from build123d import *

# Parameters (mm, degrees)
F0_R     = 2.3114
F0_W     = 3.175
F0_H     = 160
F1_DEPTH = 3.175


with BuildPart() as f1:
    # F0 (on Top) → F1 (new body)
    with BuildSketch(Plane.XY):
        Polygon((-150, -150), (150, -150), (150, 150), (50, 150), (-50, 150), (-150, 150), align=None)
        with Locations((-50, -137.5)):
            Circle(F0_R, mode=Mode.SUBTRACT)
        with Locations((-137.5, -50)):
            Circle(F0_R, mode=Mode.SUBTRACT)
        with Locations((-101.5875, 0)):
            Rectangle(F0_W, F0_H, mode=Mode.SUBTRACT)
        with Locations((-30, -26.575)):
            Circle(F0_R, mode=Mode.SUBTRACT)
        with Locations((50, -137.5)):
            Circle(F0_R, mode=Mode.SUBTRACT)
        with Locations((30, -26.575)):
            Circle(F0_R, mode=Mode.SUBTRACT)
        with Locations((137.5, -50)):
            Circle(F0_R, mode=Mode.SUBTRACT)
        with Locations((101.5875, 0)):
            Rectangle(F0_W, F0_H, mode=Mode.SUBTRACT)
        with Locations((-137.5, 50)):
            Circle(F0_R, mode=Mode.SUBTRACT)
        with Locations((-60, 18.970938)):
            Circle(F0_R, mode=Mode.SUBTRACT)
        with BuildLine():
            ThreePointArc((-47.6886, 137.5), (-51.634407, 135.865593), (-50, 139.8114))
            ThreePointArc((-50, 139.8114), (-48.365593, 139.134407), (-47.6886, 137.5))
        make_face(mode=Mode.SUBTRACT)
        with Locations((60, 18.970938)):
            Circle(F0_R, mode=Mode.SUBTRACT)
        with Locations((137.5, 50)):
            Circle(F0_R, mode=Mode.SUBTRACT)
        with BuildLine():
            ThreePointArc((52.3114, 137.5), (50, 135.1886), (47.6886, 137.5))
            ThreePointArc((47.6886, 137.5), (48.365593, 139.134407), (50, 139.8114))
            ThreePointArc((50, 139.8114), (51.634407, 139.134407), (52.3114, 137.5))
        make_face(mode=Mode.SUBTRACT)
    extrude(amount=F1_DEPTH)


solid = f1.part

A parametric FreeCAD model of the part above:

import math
import FreeCAD as App
import Part
import Sketcher
Q = App.Units.Quantity

doc = App.newDocument("Part")
body = doc.addObject("PartDesign::Body", "Body")

# Sketch on XY plane
sketch1 = body.newObject("Sketcher::SketchObject", "Sketch")
sketch1.AttachmentSupport = (doc.getObject("XY_Plane"), [""])
sketch1.MapMode = "FlatFace"
sketch1.addGeometry([
    Part.LineSegment(App.Vector(-150, -150, 0), App.Vector(150, -150, 0)),  # 0
    Part.LineSegment(App.Vector(150, -150, 0), App.Vector(150, 150, 0)),  # 1
    Part.LineSegment(App.Vector(150, 150, 0), App.Vector(-150, 150, 0)),  # 2
    Part.LineSegment(App.Vector(-150, 150, 0), App.Vector(-150, -150, 0)),  # 3
    Part.Circle(App.Vector(-50, -137.5, 0), App.Vector(0, 0, 1), 2.3114),  # 4
    Part.Circle(App.Vector(-137.5, -50, 0), App.Vector(0, 0, 1), 2.3114),  # 5
    Part.LineSegment(App.Vector(-100, -80, 0), App.Vector(-103.175, -80, 0)),  # 6
    Part.LineSegment(App.Vector(-103.175, -80, 0), App.Vector(-103.175, 80, 0)),  # 7
    Part.LineSegment(App.Vector(-103.175, 80, 0), App.Vector(-100, 80, 0)),  # 8
    Part.LineSegment(App.Vector(-100, 80, 0), App.Vector(-100, -80, 0)),  # 9
    Part.Circle(App.Vector(-30, -26.575, 0), App.Vector(0, 0, 1), 2.3114),  # 10
    Part.Circle(App.Vector(50, -137.5, 0), App.Vector(0, 0, 1), 2.3114),  # 11
    Part.Circle(App.Vector(30, -26.575, 0), App.Vector(0, 0, 1), 2.3114),  # 12
    Part.Circle(App.Vector(137.5, -50, 0), App.Vector(0, 0, 1), 2.3114),  # 13
    Part.LineSegment(App.Vector(103.175, -80, 0), App.Vector(100, -80, 0)),  # 14
    Part.LineSegment(App.Vector(100, -80, 0), App.Vector(100, 80, 0)),  # 15
    Part.LineSegment(App.Vector(100, 80, 0), App.Vector(103.175, 80, 0)),  # 16
    Part.LineSegment(App.Vector(103.175, 80, 0), App.Vector(103.175, -80, 0)),  # 17
    Part.Circle(App.Vector(-137.5, 50, 0), App.Vector(0, 0, 1), 2.3114),  # 18
    Part.Circle(App.Vector(-60, 18.970938, 0), App.Vector(0, 0, 1), 2.3114),  # 19
    Part.ArcOfCircle(Part.Circle(App.Vector(-49.999999, 137.500001, 0), App.Vector(0, 0, 1), 2.311399), math.radians(-0.000033), math.radians(90.000033)),  # 20
    Part.ArcOfCircle(Part.Circle(App.Vector(-50, 137.5, 0), App.Vector(0, 0, 1), 2.3114), math.radians(89.999994), math.radians(360.000006)),  # 21
    Part.Circle(App.Vector(60, 18.970938, 0), App.Vector(0, 0, 1), 2.3114),  # 22
    Part.Circle(App.Vector(137.5, 50, 0), App.Vector(0, 0, 1), 2.3114),  # 23
    Part.ArcOfCircle(Part.Circle(App.Vector(50.000001, 137.500001, 0), App.Vector(0, 0, 1), 2.311399), math.radians(-0.000033), math.radians(90.000033)),  # 24
    Part.ArcOfCircle(Part.Circle(App.Vector(50, 137.5, 0), App.Vector(0, 0, 1), 2.3114), math.radians(180), math.radians(360)),  # 25
    Part.ArcOfCircle(Part.Circle(App.Vector(49.999999, 137.500001, 0), App.Vector(0, 0, 1), 2.311399), math.radians(89.999967), math.radians(180.000033)),  # 26
], False)
sketch1.addConstraint([
    Sketcher.Constraint("Coincident", 0, 2, 1, 1),
    Sketcher.Constraint("Coincident", 1, 2, 2, 1),
    Sketcher.Constraint("Coincident", 2, 2, 3, 1),
    Sketcher.Constraint("Coincident", 3, 2, 0, 1),
    Sketcher.Constraint("Coincident", 6, 2, 7, 1),
    Sketcher.Constraint("Coincident", 7, 2, 8, 1),
    Sketcher.Constraint("Coincident", 8, 2, 9, 1),
    Sketcher.Constraint("Coincident", 9, 2, 6, 1),
    Sketcher.Constraint("Coincident", 14, 2, 15, 1),
    Sketcher.Constraint("Coincident", 15, 2, 16, 1),
    Sketcher.Constraint("Coincident", 16, 2, 17, 1),
    Sketcher.Constraint("Coincident", 17, 2, 14, 1),
    Sketcher.Constraint("Tangent", 20, 1, 21, 2),
    Sketcher.Constraint("Coincident", 21, 1, 20, 2),
    Sketcher.Constraint("Tangent", 24, 1, 25, 2),
    Sketcher.Constraint("Tangent", 25, 1, 26, 2),
    Sketcher.Constraint("Tangent", 26, 1, 24, 2),
    Sketcher.Constraint("Horizontal", 0),
    Sketcher.Constraint("Vertical", 1),
    Sketcher.Constraint("Horizontal", 2),
    Sketcher.Constraint("Vertical", 3),
    Sketcher.Constraint("Horizontal", 6),
    Sketcher.Constraint("Vertical", 7),
    Sketcher.Constraint("Horizontal", 8),
    Sketcher.Constraint("Vertical", 9),
    Sketcher.Constraint("Horizontal", 14),
    Sketcher.Constraint("Vertical", 15),
    Sketcher.Constraint("Horizontal", 16),
    Sketcher.Constraint("Vertical", 17),
    Sketcher.Constraint("Equal", 4, 5),
    Sketcher.Constraint("Equal", 5, 10),
    Sketcher.Constraint("Equal", 10, 11),
    Sketcher.Constraint("Equal", 11, 12),
    Sketcher.Constraint("Equal", 12, 13),
    Sketcher.Constraint("Equal", 13, 18),
    Sketcher.Constraint("Equal", 18, 19),
    Sketcher.Constraint("Equal", 19, 20),
    Sketcher.Constraint("Equal", 21, 22),
    Sketcher.Constraint("Equal", 22, 23),
    Sketcher.Constraint("Equal", 23, 24),
    Sketcher.Constraint("Symmetric", 13, 3, 18, 3, -1, 1),
    Sketcher.Constraint("Symmetric", 11, 3, 20, 3, -1, 1),
    Sketcher.Constraint("Symmetric", 5, 3, 23, 3, -1, 1),
    Sketcher.Constraint("Symmetric", 4, 3, 24, 3, -1, 1),
    Sketcher.Constraint("Symmetric", 0, 2, 2, 2, -1, 1),
    Sketcher.Constraint("Symmetric", 8, 2, 14, 2, -1, 1),
    Sketcher.Constraint("Symmetric", 6, 2, 16, 2, -1, 1),
    Sketcher.Constraint("Symmetric", 4, 3, 11, 3, -2),
    Sketcher.Constraint("Symmetric", 10, 3, 12, 3, -2),
    Sketcher.Constraint("Symmetric", 5, 3, 13, 3, -2),
    Sketcher.Constraint("Symmetric", 19, 3, 22, 3, -2),
    Sketcher.Constraint("Horizontal", 9, 2, 14, 2),
    Sketcher.Constraint("Horizontal", 26, 3, 20, 1),
    Sketcher.Constraint("Horizontal", 20, 1, 24, 1),
    Sketcher.Constraint("Horizontal", 24, 1, 25, 1),
    Sketcher.Constraint("Vertical", 20, 3, 21, 1),
    Sketcher.Constraint("Vertical", 25, 3, 26, 1),
    Sketcher.Constraint("Equal", 2, 1),
    Sketcher.Constraint("Diameter", 4, Q("0.182 in")),
    Sketcher.Constraint("DistanceX", 6, 2, 6, 1, Q("0.125 in")),
    Sketcher.Constraint("DistanceX", 0, 1, 0, 2, 300.0),
    Sketcher.Constraint("DistanceY", 7, 1, 7, 2, 160.0),
    Sketcher.Constraint("DistanceX", 4, 3, -1, 1, 50.0),
    Sketcher.Constraint("DistanceY", 4, 3, -1, 1, 137.5),
    Sketcher.Constraint("DistanceX", 5, 3, -1, 1, 137.5),
    Sketcher.Constraint("DistanceY", 5, 3, -1, 1, 50.0),
    Sketcher.Constraint("DistanceX", 10, 3, -1, 1, 30.0),
    Sketcher.Constraint("DistanceY", 10, 3, -1, 1, 26.575),
    Sketcher.Constraint("DistanceX", 19, 3, -1, 1, 60.0),
    Sketcher.Constraint("DistanceX", 6, 2, -1, 1, 103.175),
    Sketcher.Constraint("DistanceY", -1, 1, 19, 3, 18.970938),
])
pad1 = body.newObject("PartDesign::Pad", "Pad")
pad1.Profile = sketch1
pad1.Length = Q("0.125 in")

doc.recompute()
